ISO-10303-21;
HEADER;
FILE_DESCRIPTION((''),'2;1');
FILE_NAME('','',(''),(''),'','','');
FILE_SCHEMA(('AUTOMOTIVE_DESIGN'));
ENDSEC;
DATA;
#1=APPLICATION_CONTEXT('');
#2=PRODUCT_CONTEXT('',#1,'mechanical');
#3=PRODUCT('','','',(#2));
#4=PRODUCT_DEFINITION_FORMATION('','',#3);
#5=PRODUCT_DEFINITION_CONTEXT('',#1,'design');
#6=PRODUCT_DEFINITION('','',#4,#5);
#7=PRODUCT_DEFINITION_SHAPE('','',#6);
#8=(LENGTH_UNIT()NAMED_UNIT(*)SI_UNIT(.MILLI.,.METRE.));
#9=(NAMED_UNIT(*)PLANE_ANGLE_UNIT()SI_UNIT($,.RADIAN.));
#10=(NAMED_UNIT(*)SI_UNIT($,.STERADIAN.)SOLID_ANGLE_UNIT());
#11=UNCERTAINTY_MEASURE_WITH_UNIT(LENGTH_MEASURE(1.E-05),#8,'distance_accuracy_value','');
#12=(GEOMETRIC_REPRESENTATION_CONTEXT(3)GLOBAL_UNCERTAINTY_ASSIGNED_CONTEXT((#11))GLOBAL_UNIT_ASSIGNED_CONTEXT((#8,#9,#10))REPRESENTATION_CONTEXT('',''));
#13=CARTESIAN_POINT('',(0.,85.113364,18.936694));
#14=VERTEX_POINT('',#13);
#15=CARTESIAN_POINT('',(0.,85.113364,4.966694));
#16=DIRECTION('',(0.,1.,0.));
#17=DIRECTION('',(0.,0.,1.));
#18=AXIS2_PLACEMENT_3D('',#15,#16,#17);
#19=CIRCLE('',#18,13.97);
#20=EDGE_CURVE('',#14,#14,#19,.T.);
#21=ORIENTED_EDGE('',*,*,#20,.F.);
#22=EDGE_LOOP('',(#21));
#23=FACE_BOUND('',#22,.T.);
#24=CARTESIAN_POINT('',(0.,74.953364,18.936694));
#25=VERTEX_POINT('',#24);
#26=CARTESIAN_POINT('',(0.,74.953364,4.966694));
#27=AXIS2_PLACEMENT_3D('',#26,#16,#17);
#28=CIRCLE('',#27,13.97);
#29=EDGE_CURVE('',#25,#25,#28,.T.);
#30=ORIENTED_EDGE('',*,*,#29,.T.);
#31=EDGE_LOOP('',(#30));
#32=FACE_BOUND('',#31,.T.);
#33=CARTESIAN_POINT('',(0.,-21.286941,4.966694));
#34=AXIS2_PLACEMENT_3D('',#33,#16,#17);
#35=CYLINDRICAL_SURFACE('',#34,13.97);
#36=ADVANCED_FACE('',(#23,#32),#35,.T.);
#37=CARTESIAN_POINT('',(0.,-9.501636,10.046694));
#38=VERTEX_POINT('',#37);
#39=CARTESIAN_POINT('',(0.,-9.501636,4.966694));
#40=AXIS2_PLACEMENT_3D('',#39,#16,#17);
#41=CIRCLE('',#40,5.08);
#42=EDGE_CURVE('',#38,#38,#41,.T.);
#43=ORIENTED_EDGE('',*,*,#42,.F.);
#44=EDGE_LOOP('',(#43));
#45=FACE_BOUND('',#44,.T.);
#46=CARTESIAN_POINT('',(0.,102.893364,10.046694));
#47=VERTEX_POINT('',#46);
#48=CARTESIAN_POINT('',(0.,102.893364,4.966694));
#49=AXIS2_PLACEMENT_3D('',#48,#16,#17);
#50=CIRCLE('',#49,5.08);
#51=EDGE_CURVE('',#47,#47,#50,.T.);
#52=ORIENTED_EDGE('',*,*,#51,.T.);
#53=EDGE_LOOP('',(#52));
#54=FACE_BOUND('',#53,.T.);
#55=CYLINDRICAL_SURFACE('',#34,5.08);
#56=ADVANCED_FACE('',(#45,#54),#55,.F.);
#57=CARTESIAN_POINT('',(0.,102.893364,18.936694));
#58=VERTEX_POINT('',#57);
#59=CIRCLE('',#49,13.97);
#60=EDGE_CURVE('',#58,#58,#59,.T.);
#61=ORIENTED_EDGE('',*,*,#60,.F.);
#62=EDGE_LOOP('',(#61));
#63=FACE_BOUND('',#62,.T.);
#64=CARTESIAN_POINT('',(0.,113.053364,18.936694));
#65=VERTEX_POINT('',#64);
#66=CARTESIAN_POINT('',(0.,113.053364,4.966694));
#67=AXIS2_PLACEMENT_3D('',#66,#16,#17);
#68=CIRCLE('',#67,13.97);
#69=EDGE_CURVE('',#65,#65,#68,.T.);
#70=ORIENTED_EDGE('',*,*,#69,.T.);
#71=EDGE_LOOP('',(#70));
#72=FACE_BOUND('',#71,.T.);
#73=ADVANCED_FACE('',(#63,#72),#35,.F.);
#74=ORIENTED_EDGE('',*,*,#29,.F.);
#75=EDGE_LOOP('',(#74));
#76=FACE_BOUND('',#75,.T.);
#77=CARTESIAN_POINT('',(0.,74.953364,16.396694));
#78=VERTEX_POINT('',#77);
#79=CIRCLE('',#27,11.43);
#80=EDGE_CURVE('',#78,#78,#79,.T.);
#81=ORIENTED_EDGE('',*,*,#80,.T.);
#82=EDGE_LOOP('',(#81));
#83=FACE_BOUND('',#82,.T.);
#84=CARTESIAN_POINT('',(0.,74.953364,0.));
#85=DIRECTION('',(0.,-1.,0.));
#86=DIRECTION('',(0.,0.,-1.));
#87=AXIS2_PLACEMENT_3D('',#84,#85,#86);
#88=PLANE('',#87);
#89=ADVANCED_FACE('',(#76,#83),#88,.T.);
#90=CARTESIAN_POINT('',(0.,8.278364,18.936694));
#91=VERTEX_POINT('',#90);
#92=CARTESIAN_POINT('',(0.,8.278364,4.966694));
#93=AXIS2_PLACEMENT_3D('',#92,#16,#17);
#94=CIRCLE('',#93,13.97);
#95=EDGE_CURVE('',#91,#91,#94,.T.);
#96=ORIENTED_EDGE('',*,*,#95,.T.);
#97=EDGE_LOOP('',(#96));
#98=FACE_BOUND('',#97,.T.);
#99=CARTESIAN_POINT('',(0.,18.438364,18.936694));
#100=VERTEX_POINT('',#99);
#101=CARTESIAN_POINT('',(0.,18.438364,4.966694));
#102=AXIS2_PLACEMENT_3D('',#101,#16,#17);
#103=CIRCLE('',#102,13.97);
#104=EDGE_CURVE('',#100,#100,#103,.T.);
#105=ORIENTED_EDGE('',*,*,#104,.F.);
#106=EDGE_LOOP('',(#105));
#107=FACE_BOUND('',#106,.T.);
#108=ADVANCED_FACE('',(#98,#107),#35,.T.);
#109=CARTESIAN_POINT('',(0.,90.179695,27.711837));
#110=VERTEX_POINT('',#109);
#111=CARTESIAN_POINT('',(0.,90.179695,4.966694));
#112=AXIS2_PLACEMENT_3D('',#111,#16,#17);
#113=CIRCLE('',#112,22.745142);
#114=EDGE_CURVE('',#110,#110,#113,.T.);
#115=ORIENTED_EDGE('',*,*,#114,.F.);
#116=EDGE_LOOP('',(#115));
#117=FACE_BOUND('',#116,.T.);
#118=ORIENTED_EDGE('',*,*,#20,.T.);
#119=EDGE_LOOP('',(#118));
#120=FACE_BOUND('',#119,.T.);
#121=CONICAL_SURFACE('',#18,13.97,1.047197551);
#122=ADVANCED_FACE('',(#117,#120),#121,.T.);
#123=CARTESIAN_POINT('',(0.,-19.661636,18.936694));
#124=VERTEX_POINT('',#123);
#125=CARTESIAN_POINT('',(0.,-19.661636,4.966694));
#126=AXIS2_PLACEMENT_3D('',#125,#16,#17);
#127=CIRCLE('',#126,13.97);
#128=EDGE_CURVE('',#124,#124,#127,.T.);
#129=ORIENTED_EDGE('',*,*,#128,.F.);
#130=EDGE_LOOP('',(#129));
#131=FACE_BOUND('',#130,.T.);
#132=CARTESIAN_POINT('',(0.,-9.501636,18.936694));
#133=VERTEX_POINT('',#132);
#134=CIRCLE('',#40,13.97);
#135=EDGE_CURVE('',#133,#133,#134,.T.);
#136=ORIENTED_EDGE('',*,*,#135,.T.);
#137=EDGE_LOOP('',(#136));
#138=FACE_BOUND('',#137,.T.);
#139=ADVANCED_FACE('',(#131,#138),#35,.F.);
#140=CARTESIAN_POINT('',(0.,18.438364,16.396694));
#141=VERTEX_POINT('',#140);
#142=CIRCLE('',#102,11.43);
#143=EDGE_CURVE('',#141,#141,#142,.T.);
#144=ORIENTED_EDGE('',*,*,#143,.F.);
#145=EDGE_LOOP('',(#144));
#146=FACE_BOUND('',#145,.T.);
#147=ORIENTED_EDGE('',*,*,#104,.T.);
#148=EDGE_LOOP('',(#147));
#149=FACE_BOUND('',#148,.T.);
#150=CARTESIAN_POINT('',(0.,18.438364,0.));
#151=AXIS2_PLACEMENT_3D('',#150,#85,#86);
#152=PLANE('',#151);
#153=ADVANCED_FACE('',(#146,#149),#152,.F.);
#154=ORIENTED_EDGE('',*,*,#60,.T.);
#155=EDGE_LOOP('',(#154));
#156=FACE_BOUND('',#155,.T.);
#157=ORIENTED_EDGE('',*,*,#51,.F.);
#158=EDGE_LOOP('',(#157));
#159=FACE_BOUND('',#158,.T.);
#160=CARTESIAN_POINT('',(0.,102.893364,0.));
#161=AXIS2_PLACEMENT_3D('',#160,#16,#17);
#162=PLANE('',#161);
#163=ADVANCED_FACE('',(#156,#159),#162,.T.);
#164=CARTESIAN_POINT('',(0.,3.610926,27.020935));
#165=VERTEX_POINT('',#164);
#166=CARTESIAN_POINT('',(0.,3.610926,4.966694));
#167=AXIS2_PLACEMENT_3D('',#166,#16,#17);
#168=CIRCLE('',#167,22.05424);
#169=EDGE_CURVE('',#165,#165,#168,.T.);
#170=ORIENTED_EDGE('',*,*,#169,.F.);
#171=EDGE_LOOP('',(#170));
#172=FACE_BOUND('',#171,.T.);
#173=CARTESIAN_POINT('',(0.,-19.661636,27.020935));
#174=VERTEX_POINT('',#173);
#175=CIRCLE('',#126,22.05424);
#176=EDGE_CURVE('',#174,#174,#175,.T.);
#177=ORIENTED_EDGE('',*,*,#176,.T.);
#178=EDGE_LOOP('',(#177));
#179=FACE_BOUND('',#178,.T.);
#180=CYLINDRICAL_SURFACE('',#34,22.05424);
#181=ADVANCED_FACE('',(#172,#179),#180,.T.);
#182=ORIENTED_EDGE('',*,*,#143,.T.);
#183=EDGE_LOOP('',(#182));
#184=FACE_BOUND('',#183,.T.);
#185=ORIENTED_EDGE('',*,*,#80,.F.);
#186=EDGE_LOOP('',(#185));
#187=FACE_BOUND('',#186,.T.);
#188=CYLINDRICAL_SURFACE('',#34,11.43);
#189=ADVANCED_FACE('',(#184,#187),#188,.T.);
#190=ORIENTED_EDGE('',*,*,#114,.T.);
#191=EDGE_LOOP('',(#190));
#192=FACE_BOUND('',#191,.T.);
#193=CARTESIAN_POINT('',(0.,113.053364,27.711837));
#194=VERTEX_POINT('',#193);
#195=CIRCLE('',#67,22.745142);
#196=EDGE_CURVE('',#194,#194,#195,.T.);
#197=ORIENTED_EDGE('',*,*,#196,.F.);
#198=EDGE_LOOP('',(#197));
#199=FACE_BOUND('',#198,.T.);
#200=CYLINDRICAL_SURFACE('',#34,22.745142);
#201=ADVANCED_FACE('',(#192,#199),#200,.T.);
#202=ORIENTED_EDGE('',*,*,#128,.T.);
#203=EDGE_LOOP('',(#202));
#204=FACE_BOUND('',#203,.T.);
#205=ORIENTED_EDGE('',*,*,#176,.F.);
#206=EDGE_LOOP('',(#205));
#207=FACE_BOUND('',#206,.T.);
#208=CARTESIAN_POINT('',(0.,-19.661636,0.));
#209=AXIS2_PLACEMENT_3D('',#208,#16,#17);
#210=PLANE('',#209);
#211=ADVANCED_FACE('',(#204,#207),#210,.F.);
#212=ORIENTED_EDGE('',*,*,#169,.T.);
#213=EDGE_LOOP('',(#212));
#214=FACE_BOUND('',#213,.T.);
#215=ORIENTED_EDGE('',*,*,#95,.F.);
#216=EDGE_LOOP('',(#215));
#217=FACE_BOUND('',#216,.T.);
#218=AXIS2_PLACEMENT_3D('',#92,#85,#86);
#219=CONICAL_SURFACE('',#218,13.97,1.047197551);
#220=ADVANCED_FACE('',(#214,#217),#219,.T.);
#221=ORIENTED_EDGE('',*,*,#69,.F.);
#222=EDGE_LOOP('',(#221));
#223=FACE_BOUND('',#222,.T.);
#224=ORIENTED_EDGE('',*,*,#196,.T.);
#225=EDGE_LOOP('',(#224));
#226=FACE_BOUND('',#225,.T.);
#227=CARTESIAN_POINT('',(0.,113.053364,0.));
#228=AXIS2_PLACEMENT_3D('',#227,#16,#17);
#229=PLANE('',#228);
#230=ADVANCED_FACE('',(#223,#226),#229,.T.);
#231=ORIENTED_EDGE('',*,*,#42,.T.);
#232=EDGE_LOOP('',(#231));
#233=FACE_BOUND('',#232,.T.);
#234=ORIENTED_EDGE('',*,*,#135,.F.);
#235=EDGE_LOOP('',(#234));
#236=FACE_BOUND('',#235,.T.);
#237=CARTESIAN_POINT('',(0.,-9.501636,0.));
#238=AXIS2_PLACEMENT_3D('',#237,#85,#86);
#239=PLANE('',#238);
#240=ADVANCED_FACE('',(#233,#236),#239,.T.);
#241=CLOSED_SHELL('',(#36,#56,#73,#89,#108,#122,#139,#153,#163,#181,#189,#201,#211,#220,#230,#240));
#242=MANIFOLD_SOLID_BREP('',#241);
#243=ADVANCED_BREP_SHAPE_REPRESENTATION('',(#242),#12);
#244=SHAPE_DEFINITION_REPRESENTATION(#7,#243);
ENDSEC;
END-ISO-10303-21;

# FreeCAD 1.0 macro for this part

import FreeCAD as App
import Part
import Sketcher

V = App.Vector
Q = App.Units.Quantity


def add_polygon(sketch, points):
    """Adds a closed chain of lines whose ends are joined by coincident constraints."""
    first, n = sketch.GeometryCount, len(points)
    for a, b in zip(points, points[1:] + points[:1]):
        sketch.addGeometry(Part.LineSegment(App.Vector(*a, 0), App.Vector(*b, 0)), False)
    for i in range(n):
        sketch.addConstraint(Sketcher.Constraint("Coincident", first + i, 2, first + (i + 1) % n, 1))

doc = App.newDocument("Part")
params = doc.addObject("Spreadsheet::Sheet", "Params")
for row, (alias, value) in enumerate([
    ("sketch1_width", "0.4 in"),
    ("sketch1_height", "0.1 in"),
    ("sketch1_height2", "0.35 in"),
    ("sketch1_width2", "4.425 in"),
    ("revolution_angle", "360 deg"),
], start=1):
    params.set(f"A{row}", alias)
    params.set(f"B{row}", "=" + value)
    params.setAlias(f"B{row}", alias)

body = doc.addObject("PartDesign::Body", "Body")

sketch1 = body.newObject("Sketcher::SketchObject", "Sketch")
sketch1.AttachmentSupport = (doc.getObject("YZ_Plane"), [""])
sketch1.MapMode = "FlatFace"
add_polygon(sketch1, [(18.4, 16.4), (18.4, 18.9), (8.3, 18.9), (3.6, 27), (-19.7, 27), (-19.7, 18.9), (-9.5, 18.9), (-9.5, 10), (102.9, 10), (102.9, 18.9), (113.1, 18.9), (113.1, 27.7), (90.2, 27.7), (85.1, 18.9), (75, 18.9), (75, 16.4)])
sketch1.addGeometry(Part.LineSegment(V(113.1, 5, 0), V(-19.7, 5, 0)), True)
sketch1.addConstraint([
    Sketcher.Constraint("Vertical", 0),
    Sketcher.Constraint("Horizontal", 1),
    Sketcher.Constraint("Horizontal", 3),
    Sketcher.Constraint("Vertical", 4),
    Sketcher.Constraint("Horizontal", 5),
    Sketcher.Constraint("Vertical", 6),
    Sketcher.Constraint("Horizontal", 7),
    Sketcher.Constraint("Vertical", 8),
    Sketcher.Constraint("Horizontal", 9),
    Sketcher.Constraint("Vertical", 10),
    Sketcher.Constraint("Horizontal", 11),
    Sketcher.Constraint("Horizontal", 13),
    Sketcher.Constraint("Vertical", 14),
    Sketcher.Constraint("Horizontal", 15),
    Sketcher.Constraint("Horizontal", 16),
    Sketcher.Constraint("Horizontal", 1, 2, 4, 2),
    Sketcher.Constraint("Horizontal", 5, 2, 8, 2),
    Sketcher.Constraint("Horizontal", 9, 2, 12, 2),
    Sketcher.Constraint("Vertical", 10, 2, 16, 1),
    Sketcher.Constraint("Vertical", 4, 2, 16, 2),
    Sketcher.Constraint("Equal", 1, 5),
    Sketcher.Constraint("Equal", 5, 9),
    Sketcher.Constraint("Equal", 9, 13),
    Sketcher.Constraint("DistanceX", 1, 2, 1, 1, Q("0.4 in")),
    Sketcher.Constraint("DistanceY", 0, 1, 0, 2, Q("0.1 in")),
    Sketcher.Constraint("Angle", 2, Q("120 deg")),
    Sketcher.Constraint("Angle", 12, Q("-120 deg")),
    Sketcher.Constraint("DistanceY", 6, 2, 6, 1, Q("0.35 in")),
    Sketcher.Constraint("DistanceX", 3, 2, 1, 2, Q("1.1 in")),
    Sketcher.Constraint("DistanceX", 12, 2, 8, 2, Q("0.7 in")),
    Sketcher.Constraint("DistanceY", 16, 1, 7, 2, Q("0.2 in")),
    Sketcher.Constraint("DistanceX", 7, 1, 7, 2, Q("4.425 in")),
    Sketcher.Constraint("DistanceX", 3, 2, 3, 1, 23.272562),
    Sketcher.Constraint("DistanceX", 11, 2, 11, 1, 22.873669),
    Sketcher.Constraint("DistanceX", -1, 1, 0, 2, 18.438364),
    Sketcher.Constraint("DistanceY", -1, 1, 0, 2, 18.936694),
])
sketch1.setExpression("Constraints[39]", "Params.sketch1_width")
sketch1.setExpression("Constraints[40]", "Params.sketch1_height")
sketch1.setExpression("Constraints[43]", "Params.sketch1_height2")
sketch1.setExpression("Constraints[47]", "Params.sketch1_width2")
revolution = body.newObject("PartDesign::Revolution", "Revolution")
revolution.Profile = sketch1
revolution.ReferenceAxis = (sketch1, ["Axis0"])
revolution.setExpression("Angle", "Params.revolution_angle")

doc.recompute()
